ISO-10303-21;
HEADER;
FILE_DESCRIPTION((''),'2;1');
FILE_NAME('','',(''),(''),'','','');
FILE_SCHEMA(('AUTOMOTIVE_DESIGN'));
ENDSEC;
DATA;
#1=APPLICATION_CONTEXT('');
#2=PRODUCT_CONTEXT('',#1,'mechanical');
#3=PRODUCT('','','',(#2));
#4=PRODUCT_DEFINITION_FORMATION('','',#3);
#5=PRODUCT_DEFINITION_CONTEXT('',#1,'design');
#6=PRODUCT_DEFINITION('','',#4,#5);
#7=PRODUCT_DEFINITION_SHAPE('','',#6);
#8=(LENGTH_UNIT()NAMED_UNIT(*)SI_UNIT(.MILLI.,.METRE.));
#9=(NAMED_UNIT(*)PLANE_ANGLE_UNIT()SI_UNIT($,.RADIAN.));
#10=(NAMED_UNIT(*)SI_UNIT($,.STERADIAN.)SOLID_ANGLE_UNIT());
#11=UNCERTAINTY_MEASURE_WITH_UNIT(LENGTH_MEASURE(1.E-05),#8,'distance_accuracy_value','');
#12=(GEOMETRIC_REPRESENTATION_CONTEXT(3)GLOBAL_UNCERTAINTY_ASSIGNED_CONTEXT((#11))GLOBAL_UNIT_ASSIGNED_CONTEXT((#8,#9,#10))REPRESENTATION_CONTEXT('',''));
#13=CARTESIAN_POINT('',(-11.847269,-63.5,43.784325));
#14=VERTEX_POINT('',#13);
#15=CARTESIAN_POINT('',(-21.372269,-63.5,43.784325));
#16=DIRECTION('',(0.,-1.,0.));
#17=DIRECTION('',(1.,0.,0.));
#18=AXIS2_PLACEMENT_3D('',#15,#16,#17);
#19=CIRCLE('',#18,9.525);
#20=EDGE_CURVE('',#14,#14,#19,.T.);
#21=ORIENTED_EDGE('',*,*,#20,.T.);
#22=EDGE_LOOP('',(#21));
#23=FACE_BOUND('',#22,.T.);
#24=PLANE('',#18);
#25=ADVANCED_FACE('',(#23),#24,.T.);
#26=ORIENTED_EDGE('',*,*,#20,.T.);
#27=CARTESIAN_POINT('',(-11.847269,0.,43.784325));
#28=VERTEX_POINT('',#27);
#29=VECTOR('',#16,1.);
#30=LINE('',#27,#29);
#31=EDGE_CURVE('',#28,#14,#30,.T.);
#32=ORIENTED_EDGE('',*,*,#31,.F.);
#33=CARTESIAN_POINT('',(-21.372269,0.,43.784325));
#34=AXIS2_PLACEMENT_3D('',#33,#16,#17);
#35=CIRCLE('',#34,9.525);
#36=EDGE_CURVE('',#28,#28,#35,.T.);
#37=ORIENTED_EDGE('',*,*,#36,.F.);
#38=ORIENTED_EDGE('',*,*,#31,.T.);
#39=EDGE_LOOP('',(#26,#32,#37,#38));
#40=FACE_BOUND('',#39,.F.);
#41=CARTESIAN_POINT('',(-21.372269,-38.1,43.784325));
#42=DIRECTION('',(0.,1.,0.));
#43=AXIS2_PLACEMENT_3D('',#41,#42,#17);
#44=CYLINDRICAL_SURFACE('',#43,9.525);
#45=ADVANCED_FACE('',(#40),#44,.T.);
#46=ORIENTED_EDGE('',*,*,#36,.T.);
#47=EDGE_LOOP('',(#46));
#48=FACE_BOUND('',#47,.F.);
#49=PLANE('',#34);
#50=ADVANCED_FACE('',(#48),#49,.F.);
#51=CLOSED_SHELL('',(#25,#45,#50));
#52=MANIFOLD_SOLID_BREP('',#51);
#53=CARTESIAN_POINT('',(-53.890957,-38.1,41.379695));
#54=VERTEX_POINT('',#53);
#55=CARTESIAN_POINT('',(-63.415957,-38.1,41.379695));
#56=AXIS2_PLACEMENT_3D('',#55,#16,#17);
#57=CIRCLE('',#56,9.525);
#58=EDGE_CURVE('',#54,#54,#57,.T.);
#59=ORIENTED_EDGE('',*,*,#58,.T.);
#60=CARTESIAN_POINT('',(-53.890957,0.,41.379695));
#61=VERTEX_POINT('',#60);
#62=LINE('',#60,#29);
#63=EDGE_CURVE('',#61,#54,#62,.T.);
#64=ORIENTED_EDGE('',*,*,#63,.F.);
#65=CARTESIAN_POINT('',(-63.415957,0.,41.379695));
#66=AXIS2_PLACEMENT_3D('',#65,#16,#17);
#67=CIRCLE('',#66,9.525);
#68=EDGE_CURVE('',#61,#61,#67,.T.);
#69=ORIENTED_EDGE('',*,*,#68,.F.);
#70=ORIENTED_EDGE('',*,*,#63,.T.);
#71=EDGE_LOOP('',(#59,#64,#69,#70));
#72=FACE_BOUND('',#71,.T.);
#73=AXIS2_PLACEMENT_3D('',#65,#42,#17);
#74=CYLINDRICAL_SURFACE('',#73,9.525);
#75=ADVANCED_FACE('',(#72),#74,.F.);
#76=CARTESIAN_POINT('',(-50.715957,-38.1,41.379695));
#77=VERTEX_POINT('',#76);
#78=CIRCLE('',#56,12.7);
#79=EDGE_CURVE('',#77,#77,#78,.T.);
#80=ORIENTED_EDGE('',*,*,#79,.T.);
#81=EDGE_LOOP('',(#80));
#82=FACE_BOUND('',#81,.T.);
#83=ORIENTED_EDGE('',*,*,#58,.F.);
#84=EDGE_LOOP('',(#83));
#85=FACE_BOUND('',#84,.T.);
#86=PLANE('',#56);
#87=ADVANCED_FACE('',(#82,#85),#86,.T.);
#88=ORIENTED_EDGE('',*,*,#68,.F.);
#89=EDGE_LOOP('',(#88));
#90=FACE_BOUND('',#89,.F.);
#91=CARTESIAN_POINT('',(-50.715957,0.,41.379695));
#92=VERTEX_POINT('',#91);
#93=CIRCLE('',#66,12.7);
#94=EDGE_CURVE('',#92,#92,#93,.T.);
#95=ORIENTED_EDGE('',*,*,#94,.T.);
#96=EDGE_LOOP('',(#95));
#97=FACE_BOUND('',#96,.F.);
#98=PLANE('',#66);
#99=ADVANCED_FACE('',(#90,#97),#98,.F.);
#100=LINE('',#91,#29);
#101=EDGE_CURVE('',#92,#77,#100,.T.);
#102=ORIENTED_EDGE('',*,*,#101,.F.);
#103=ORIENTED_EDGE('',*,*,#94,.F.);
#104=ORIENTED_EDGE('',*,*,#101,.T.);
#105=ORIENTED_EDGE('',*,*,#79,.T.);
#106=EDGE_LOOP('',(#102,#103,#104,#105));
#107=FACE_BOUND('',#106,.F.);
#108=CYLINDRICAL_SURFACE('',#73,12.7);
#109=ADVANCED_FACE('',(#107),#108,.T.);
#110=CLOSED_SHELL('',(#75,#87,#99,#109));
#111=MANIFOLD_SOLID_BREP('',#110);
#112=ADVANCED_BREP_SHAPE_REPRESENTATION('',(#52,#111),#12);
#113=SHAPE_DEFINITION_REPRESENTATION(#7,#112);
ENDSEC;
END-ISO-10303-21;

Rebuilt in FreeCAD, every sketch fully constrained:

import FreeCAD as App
import Part
import Sketcher
Q = App.Units.Quantity

doc = App.newDocument("Part")
body = doc.addObject("PartDesign::Body", "Body")
body.AllowCompound = True

sketch1 = body.newObject("Sketcher::SketchObject", "Sketch")
sketch1.AttachmentSupport = (doc.getObject("XZ_Plane"), [""])
sketch1.MapMode = "FlatFace"
sketch1.addGeometry(Part.Circle(App.Vector(-63, 41, 0), App.Vector(0, 0, 1), 13), False)
sketch1.addGeometry(Part.Circle(App.Vector(-63, 41, 0), App.Vector(0, 0, 1), 10), False)
sketch1.addGeometry(Part.Circle(App.Vector(-21, 44, 0), App.Vector(0, 0, 1), 10), False)
sketch1.addConstraint(Sketcher.Constraint("Coincident", 1, 3, 0, 3))
sketch1.addConstraint(Sketcher.Constraint("Equal", 1, 2))
sketch1.addConstraint(Sketcher.Constraint("Diameter", 0, Q("1 in")))
sketch1.addConstraint(Sketcher.Constraint("Diameter", 1, Q("0.75 in")))
sketch1.addConstraint(Sketcher.Constraint("DistanceX", 2, 3, -1, 1, 21.372269))
sketch1.addConstraint(Sketcher.Constraint("DistanceX", 0, 3, 2, 3, 42.043688))
sketch1.addConstraint(Sketcher.Constraint("DistanceY", 0, 3, 2, 3, 2.40463))
sketch1.addConstraint(Sketcher.Constraint("DistanceY", -1, 1, 0, 3, 41.379695))
pad1 = body.newObject("PartDesign::Pad", "Pad")
pad1.Profile = sketch1
pad1.Length = Q("1.5 in")

sketch2 = body.newObject("Sketcher::SketchObject", "Sketch001")
sketch2.AttachmentSupport = (doc.getObject("XZ_Plane"), [""])
sketch2.MapMode = "FlatFace"
sketch2.AttachmentOffset = App.Placement(App.Vector(0, 0, 1.5 * 25.4), App.Rotation())
sketch2.addGeometry(Part.Circle(App.Vector(-21, 44, 0), App.Vector(0, 0, 1), 10), False)
sketch2.addConstraint(Sketcher.Constraint("Diameter", 0, Q("0.75 in")))
sketch2.addConstraint(Sketcher.Constraint("DistanceX", 0, 3, -1, 1, 21.372269))
sketch2.addConstraint(Sketcher.Constraint("DistanceY", -1, 1, 0, 3, 43.784325))
pad2 = body.newObject("PartDesign::Pad", "Pad001")
pad2.Profile = sketch2
pad2.Length = Q("1 in")

doc.recompute()
